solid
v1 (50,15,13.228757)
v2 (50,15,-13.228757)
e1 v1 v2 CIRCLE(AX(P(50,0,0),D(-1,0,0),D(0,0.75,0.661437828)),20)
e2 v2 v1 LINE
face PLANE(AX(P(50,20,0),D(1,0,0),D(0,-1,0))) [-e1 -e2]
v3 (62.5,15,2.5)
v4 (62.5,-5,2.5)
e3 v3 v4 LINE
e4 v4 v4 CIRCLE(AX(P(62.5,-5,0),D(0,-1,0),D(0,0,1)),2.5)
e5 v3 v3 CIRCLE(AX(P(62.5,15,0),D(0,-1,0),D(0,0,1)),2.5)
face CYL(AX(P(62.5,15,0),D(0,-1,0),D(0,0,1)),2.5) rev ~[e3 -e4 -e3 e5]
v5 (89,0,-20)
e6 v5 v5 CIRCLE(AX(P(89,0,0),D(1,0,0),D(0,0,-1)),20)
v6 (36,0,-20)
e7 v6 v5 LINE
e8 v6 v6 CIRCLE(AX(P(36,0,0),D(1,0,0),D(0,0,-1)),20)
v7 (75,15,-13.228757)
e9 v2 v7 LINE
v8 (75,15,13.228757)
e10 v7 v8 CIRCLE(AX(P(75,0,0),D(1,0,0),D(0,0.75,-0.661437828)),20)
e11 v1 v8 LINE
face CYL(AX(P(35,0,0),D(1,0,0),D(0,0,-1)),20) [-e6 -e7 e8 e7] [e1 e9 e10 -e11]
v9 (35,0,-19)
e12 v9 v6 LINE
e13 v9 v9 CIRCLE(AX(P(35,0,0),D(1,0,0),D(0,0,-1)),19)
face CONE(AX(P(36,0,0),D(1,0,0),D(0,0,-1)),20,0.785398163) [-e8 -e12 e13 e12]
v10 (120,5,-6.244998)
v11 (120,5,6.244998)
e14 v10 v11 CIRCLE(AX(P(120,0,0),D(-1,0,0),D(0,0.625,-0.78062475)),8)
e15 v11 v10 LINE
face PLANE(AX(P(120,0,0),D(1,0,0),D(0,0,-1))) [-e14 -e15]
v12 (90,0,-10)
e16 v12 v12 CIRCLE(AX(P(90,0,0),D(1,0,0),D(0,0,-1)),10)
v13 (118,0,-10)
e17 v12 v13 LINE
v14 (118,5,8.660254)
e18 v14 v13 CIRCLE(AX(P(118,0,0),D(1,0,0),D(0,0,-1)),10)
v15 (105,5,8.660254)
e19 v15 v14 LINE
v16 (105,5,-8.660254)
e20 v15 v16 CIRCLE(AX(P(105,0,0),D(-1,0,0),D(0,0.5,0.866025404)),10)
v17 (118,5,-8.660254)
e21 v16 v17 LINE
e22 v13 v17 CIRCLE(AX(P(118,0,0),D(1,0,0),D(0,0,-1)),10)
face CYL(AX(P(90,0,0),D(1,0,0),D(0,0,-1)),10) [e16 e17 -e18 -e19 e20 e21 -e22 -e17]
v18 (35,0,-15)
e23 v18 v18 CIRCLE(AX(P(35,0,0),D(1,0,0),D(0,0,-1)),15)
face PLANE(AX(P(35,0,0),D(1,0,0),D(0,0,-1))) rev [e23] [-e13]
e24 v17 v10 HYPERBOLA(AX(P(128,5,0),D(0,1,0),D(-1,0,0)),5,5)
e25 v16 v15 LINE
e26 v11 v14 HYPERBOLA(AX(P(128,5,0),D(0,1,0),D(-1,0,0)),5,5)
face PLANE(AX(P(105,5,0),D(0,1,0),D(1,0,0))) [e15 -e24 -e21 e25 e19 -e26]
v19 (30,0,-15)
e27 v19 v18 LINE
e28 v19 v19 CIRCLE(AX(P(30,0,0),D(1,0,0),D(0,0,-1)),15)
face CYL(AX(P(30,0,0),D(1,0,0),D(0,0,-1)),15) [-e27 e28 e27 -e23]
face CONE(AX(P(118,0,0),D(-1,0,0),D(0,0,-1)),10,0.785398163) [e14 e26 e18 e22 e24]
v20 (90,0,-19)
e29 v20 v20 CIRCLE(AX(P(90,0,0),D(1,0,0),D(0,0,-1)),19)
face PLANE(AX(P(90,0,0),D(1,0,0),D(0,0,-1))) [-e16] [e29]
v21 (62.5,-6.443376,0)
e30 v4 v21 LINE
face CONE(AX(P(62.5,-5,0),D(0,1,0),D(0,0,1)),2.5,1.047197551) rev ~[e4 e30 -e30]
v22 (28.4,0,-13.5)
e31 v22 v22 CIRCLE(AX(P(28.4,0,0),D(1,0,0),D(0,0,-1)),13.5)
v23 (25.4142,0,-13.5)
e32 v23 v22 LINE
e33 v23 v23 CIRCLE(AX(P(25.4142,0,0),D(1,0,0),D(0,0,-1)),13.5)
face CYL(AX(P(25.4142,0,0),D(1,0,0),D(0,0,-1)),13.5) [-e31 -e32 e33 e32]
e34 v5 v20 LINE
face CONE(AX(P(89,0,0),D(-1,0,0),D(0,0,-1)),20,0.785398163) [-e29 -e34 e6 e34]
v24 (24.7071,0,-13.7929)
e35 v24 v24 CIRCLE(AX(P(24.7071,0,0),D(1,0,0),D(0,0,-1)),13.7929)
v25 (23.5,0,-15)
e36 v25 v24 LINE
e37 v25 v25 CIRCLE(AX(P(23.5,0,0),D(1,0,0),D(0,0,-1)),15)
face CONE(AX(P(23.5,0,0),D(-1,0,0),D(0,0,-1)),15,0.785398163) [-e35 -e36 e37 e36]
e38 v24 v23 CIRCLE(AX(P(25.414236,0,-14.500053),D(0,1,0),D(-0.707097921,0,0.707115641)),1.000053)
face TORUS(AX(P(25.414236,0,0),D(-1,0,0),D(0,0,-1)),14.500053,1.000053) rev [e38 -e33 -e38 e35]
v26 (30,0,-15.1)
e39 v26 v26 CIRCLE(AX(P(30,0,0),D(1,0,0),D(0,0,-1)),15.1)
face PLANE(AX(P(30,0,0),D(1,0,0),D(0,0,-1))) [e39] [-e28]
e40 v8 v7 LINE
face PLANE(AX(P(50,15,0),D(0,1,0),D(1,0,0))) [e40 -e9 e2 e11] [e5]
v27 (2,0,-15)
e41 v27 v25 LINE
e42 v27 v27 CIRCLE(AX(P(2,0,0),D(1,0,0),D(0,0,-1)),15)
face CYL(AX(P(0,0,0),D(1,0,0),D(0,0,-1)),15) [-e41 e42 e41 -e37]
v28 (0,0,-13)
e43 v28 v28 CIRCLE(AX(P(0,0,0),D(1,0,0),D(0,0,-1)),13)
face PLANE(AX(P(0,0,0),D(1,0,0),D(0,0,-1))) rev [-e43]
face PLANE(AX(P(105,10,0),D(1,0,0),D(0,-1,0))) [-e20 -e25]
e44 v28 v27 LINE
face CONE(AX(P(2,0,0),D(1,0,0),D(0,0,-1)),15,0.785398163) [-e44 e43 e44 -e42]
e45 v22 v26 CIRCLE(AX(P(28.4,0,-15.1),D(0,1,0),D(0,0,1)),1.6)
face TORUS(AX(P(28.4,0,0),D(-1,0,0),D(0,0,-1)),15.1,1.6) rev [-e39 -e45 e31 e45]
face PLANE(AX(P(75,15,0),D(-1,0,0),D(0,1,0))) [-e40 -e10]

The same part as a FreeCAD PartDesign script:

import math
import FreeCAD as App
import Part
import Sketcher
Q = App.Units.Quantity


def edges_at(feature, points):
    """Names of the edges that pass closest to the given points."""
    edges = feature.Shape.Edges
    near = lambda p: min(range(len(edges)), key=lambda i: edges[i].distToShape(Part.Vertex(*p))[0])
    return sorted({f"Edge{near(p) + 1}" for p in points})

doc = App.newDocument("Part")
body = doc.addObject("PartDesign::Body", "Body")

# Sketch on XZ plane
sketch1 = body.newObject("Sketcher::SketchObject", "Sketch")
sketch1.AttachmentSupport = (doc.getObject("XZ_Plane"), [""])
sketch1.MapMode = "FlatFace"
sketch1.addGeometry([
    Part.LineSegment(App.Vector(0, -15, 0), App.Vector(0, 0, 0)),  # 0
    Part.LineSegment(App.Vector(0, 0, 0), App.Vector(120, 0, 0)),  # 1
    Part.LineSegment(App.Vector(120, 0, 0), App.Vector(120, -10, 0)),  # 2
    Part.LineSegment(App.Vector(120, -10, 0), App.Vector(90, -10, 0)),  # 3
    Part.LineSegment(App.Vector(90, -10, 0), App.Vector(90, -20, 0)),  # 4
    Part.LineSegment(App.Vector(90, -20, 0), App.Vector(35, -20, 0)),  # 5
    Part.LineSegment(App.Vector(35, -20, 0), App.Vector(35, -15, 0)),  # 6
    Part.LineSegment(App.Vector(35, -15, 0), App.Vector(30, -15, 0)),  # 7
    Part.LineSegment(App.Vector(30, -15, 0), App.Vector(30, -15.1, 0)),  # 8
    Part.ArcOfCircle(Part.Circle(App.Vector(28.4, -15.1, 0), App.Vector(0, 0, 1), 1.6), math.radians(0), math.radians(90)),  # 9
    Part.LineSegment(App.Vector(28.4, -13.5, 0), App.Vector(25.41, -13.5, 0)),  # 10
    Part.ArcOfCircle(Part.Circle(App.Vector(25.41, -14.5, 0), App.Vector(0, 0, 1), 1), math.radians(90), math.radians(135)),  # 11
    Part.LineSegment(App.Vector(24.71, -13.79, 0), App.Vector(23.5, -15, 0)),  # 12
    Part.LineSegment(App.Vector(23.5, -15, 0), App.Vector(0, -15, 0)),  # 13
], False)
sketch1.addConstraint([
    Sketcher.Constraint("Coincident", 0, 2, 1, 1),
    Sketcher.Constraint("Coincident", 1, 2, 2, 1),
    Sketcher.Constraint("Coincident", 2, 2, 3, 1),
    Sketcher.Constraint("Coincident", 3, 2, 4, 1),
    Sketcher.Constraint("Coincident", 4, 2, 5, 1),
    Sketcher.Constraint("Coincident", 5, 2, 6, 1),
    Sketcher.Constraint("Coincident", 6, 2, 7, 1),
    Sketcher.Constraint("Coincident", 7, 2, 8, 1),
    Sketcher.Constraint("Tangent", 8, 2, 9, 1),
    Sketcher.Constraint("Tangent", 9, 2, 10, 1),
    Sketcher.Constraint("Tangent", 10, 2, 11, 1),
    Sketcher.Constraint("Tangent", 11, 2, 12, 1),
    Sketcher.Constraint("Coincident", 12, 2, 13, 1),
    Sketcher.Constraint("Coincident", 13, 2, 0, 1),
    Sketcher.Constraint("Vertical", 0),
    Sketcher.Constraint("Horizontal", 1),
    Sketcher.Constraint("Vertical", 2),
    Sketcher.Constraint("Horizontal", 3),
    Sketcher.Constraint("Vertical", 4),
    Sketcher.Constraint("Horizontal", 5),
    Sketcher.Constraint("Vertical", 6),
    Sketcher.Constraint("Horizontal", 7),
    Sketcher.Constraint("Vertical", 8),
    Sketcher.Constraint("Horizontal", 10),
    Sketcher.Constraint("Horizontal", 13),
    Sketcher.Constraint("Coincident", 0, 2, -1, 1),
    Sketcher.Constraint("Horizontal", 7, 2, 12, 2),
    Sketcher.Constraint("Equal", 2, 4),
    Sketcher.Constraint("Equal", 7, 6),
    Sketcher.Constraint("Radius", 11, Q("1 mm")),
    Sketcher.Constraint("Radius", 9, Q("1.6 mm")),
    Sketcher.Constraint("DistanceX", 1, 1, 1, 2, Q("120 mm")),
    Sketcher.Constraint("DistanceX", 3, 2, 3, 1, Q("30 mm")),
    Sketcher.Constraint("DistanceX", 5, 2, 5, 1, Q("55 mm")),
    Sketcher.Constraint("DistanceX", 7, 2, 7, 1, Q("5 mm")),
    Sketcher.Constraint("DistanceY", 0, 1, 0, 2, Q("15 mm")),
    Sketcher.Constraint("DistanceY", 9, 2, -1, 1, Q("13.5 mm")),
    Sketcher.Constraint("Angle", 12, Q("-135 deg")),
    Sketcher.Constraint("DistanceX", 13, 2, 13, 1, Q("23.5 mm")),
])
revolution = body.newObject("PartDesign::Revolution", "Revolution")
revolution.Profile = sketch1
revolution.ReferenceAxis = (sketch1, ["H_Axis"])
revolution.Angle = 360
doc.recompute()

chamfer = body.newObject("PartDesign::Chamfer", "Chamfer")
chamfer.Base = (revolution, edges_at(revolution, [(0, 0, 15), (120, 0, 10)]))
chamfer.Size = 2
doc.recompute()

chamfer2 = body.newObject("PartDesign::Chamfer", "Chamfer001")
chamfer2.Base = (chamfer, edges_at(chamfer, [(35, 0, 20), (90, 0, 20)]))
chamfer2.Size = 1

# Sketch on XY plane
sketch2 = body.newObject("Sketcher::SketchObject", "Sketch001")
sketch2.AttachmentSupport = (doc.getObject("XY_Plane"), [""])
sketch2.MapMode = "FlatFace"
sketch2.addGeometry([
    Part.LineSegment(App.Vector(120, 10, 0), App.Vector(105, 10, 0)),
    Part.LineSegment(App.Vector(105, 10, 0), App.Vector(105, 5, 0)),
    Part.LineSegment(App.Vector(105, 5, 0), App.Vector(120, 5, 0)),
    Part.LineSegment(App.Vector(120, 5, 0), App.Vector(120, 10, 0)),
], False)
sketch2.addConstraint([
    Sketcher.Constraint("Coincident", 0, 2, 1, 1),
    Sketcher.Constraint("Coincident", 1, 2, 2, 1),
    Sketcher.Constraint("Coincident", 2, 2, 3, 1),
    Sketcher.Constraint("Coincident", 3, 2, 0, 1),
    Sketcher.Constraint("Horizontal", 0),
    Sketcher.Constraint("Vertical", 1),
    Sketcher.Constraint("Horizontal", 2),
    Sketcher.Constraint("Vertical", 3),
    Sketcher.Constraint("DistanceX", 0, 2, 0, 1, Q("15 mm")),
    Sketcher.Constraint("DistanceY", 1, 2, 1, 1, Q("5 mm")),
    Sketcher.Constraint("DistanceX", -1, 1, 0, 2, Q("105 mm")),
    Sketcher.Constraint("DistanceY", -1, 1, 0, 2, Q("10 mm")),
])
pocket1 = body.newObject("PartDesign::Pocket", "Pocket")
pocket1.Profile = sketch2
pocket1.Type = "ThroughAll"
pocket1.Midplane = True

# Sketch on XY plane
sketch3 = body.newObject("Sketcher::SketchObject", "Sketch002")
sketch3.AttachmentSupport = (doc.getObject("XY_Plane"), [""])
sketch3.MapMode = "FlatFace"
sketch3.addGeometry([
    Part.LineSegment(App.Vector(75, 20, 0), App.Vector(50, 20, 0)),
    Part.LineSegment(App.Vector(50, 20, 0), App.Vector(50, 15, 0)),
    Part.LineSegment(App.Vector(50, 15, 0), App.Vector(75, 15, 0)),
    Part.LineSegment(App.Vector(75, 15, 0), App.Vector(75, 20, 0)),
], False)
sketch3.addConstraint([
    Sketcher.Constraint("Coincident", 0, 2, 1, 1),
    Sketcher.Constraint("Coincident", 1, 2, 2, 1),
    Sketcher.Constraint("Coincident", 2, 2, 3, 1),
    Sketcher.Constraint("Coincident", 3, 2, 0, 1),
    Sketcher.Constraint("Horizontal", 0),
    Sketcher.Constraint("Vertical", 1),
    Sketcher.Constraint("Horizontal", 2),
    Sketcher.Constraint("Vertical", 3),
    Sketcher.Constraint("DistanceX", 0, 2, 0, 1, Q("25 mm")),
    Sketcher.Constraint("DistanceY", -1, 1, 1, 2, Q("15 mm")),
    Sketcher.Constraint("DistanceY", 1, 2, 1, 1, Q("5 mm")),
    Sketcher.Constraint("DistanceX", -1, 1, 0, 2, Q("50 mm")),
])
pocket2 = body.newObject("PartDesign::Pocket", "Pocket001")
pocket2.Profile = sketch3
pocket2.Type = "ThroughAll"
pocket2.Midplane = True

# Sketch on XZ plane
sketch4 = body.newObject("Sketcher::SketchObject", "Sketch003")
sketch4.AttachmentSupport = (doc.getObject("XZ_Plane"), [""])
sketch4.MapMode = "FlatFace"
sketch4.AttachmentOffset = App.Placement(App.Vector(0, 0, -15), App.Rotation())
sketch4.addGeometry(Part.Circle(App.Vector(62.5, 0, 0), App.Vector(0, 0, 1), 2.5), False)
sketch4.addConstraint([
    Sketcher.Constraint("PointOnObject", 0, 3, -1),
    Sketcher.Constraint("Diameter", 0, Q("5 mm")),
    Sketcher.Constraint("DistanceX", -1, 1, 0, 3, Q("62.5 mm")),
])
doc.recompute()
hole = body.newObject("PartDesign::Hole", "Hole")
hole.Profile = sketch4
hole.ThreadType = "None"
hole.Diameter = 5
hole.DepthType = "Dimension"
hole.Depth = 20
hole.DrillPoint = "Angled"
hole.DrillPointAngle = 120
hole.Reversed = True

doc.recompute()
